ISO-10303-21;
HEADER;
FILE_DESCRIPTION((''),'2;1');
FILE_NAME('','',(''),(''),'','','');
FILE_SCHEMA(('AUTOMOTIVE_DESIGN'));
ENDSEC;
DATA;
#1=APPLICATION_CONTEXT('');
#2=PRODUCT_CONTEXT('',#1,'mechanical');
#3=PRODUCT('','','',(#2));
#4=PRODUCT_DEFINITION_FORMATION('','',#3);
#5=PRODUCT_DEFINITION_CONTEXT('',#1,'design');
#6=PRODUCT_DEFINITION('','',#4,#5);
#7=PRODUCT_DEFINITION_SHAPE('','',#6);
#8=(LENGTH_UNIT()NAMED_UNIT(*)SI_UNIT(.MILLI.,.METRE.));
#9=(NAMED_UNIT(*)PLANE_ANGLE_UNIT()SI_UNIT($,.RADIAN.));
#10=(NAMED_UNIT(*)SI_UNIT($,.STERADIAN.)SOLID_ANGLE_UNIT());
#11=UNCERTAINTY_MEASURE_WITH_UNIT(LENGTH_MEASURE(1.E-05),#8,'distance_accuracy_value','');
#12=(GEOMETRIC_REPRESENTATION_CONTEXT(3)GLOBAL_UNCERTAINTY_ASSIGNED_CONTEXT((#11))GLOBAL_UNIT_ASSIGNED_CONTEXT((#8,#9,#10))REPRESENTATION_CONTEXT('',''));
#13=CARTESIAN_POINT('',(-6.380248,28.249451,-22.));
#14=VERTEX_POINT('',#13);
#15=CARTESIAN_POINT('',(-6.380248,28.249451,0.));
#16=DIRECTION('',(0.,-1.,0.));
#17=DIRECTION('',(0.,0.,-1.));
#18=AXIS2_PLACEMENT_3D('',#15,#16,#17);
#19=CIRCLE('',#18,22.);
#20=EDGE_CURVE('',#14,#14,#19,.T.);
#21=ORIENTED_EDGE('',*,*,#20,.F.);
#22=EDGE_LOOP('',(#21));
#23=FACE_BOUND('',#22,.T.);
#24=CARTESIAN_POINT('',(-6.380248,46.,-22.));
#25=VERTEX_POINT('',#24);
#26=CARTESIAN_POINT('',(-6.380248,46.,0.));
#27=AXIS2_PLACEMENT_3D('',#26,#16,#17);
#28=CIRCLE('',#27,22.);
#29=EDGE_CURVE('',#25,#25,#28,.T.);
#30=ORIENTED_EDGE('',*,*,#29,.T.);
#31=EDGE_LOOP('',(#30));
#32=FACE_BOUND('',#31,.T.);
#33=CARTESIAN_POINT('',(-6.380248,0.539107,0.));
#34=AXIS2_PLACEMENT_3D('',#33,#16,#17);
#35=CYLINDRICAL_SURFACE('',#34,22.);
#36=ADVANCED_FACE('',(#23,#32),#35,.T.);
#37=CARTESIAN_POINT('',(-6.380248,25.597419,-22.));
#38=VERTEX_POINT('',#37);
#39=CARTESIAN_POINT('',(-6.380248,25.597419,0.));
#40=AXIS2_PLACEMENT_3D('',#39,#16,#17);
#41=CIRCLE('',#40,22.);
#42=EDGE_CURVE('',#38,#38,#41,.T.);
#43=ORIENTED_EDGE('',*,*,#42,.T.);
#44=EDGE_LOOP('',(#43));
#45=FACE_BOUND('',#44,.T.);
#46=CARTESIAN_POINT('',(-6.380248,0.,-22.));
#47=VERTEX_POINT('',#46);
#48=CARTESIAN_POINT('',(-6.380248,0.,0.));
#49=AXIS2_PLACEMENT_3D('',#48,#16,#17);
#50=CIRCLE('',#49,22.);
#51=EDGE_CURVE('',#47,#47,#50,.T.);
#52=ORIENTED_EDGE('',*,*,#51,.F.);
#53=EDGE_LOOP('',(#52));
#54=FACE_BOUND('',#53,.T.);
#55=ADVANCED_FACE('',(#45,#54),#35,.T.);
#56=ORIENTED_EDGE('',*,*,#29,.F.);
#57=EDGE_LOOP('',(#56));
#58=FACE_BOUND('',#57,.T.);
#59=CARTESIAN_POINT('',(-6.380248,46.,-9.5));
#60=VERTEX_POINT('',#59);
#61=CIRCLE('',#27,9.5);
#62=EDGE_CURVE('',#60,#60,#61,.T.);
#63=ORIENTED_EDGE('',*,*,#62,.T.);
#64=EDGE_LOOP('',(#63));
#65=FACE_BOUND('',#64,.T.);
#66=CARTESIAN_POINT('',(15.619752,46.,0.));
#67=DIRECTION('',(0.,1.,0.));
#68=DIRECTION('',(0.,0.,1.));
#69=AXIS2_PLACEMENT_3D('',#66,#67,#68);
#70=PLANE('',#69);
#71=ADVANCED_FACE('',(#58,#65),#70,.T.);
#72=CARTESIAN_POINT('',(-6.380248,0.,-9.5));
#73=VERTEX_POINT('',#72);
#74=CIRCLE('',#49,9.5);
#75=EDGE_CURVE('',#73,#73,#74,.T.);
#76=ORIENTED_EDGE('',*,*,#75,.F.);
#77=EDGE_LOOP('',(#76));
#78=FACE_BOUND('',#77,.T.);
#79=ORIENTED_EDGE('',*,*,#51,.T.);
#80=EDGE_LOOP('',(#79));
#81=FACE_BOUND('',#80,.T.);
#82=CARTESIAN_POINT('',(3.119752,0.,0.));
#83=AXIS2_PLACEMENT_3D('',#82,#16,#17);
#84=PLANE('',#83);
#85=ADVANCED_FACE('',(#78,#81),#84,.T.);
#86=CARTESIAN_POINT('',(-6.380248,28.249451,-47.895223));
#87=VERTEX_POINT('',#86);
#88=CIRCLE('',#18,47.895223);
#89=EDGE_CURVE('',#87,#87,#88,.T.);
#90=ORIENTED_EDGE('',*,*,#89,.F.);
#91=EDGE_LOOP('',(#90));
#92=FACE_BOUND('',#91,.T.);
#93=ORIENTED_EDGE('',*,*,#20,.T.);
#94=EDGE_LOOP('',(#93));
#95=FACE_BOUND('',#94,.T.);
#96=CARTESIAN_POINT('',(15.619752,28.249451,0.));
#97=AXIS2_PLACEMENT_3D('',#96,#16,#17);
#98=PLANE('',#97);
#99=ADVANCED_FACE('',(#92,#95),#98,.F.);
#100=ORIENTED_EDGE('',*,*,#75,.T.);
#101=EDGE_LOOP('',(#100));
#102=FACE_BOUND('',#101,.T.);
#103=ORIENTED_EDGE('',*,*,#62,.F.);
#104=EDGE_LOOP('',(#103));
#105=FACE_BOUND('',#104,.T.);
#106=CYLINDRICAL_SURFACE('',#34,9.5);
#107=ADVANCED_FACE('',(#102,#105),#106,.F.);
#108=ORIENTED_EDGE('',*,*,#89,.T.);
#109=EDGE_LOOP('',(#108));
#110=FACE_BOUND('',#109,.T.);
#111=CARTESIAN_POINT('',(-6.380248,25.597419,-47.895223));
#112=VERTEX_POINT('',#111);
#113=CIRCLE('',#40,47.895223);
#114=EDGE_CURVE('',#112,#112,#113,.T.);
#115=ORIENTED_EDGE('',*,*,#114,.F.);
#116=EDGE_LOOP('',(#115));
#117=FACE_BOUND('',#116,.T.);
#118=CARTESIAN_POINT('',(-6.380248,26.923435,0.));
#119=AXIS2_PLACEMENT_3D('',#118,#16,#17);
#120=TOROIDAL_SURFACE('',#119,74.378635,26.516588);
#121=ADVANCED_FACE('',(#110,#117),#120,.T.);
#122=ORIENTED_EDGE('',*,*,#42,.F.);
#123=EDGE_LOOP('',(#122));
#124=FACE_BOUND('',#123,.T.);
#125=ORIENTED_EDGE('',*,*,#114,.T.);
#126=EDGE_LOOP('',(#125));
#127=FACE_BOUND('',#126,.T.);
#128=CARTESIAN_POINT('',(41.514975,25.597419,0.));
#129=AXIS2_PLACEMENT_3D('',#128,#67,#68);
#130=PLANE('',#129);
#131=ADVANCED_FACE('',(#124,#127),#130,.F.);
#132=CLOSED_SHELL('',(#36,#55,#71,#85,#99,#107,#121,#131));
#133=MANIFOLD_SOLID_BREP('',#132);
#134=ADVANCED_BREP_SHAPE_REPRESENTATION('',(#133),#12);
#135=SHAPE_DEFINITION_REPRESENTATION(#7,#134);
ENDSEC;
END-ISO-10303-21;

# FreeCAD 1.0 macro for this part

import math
import FreeCAD as App
import Part
import Sketcher
Q = App.Units.Quantity

doc = App.newDocument("Part")
body = doc.addObject("PartDesign::Body", "Body")

# Sketch on XY plane
sketch1 = body.newObject("Sketcher::SketchObject", "Sketch")
sketch1.AttachmentSupport = (doc.getObject("XY_Plane"), [""])
sketch1.MapMode = "FlatFace"
sketch1.addGeometry([
    Part.LineSegment(App.Vector(15.619752, 28.249451, 0), App.Vector(15.619752, 46, 0)),  # 0
    Part.LineSegment(App.Vector(15.619752, 46, 0), App.Vector(3.119752, 46, 0)),  # 1
    Part.LineSegment(App.Vector(3.119752, 46, 0), App.Vector(3.119752, 0, 0)),  # 2
    Part.LineSegment(App.Vector(3.119752, 0, 0), App.Vector(15.619752, 0, 0)),  # 3
    Part.LineSegment(App.Vector(15.619752, 0, 0), App.Vector(15.619752, 25.597419, 0)),  # 4
    Part.LineSegment(App.Vector(15.619752, 25.597419, 0), App.Vector(41.514975, 25.597419, 0)),  # 5
    Part.ArcOfCircle(Part.Circle(App.Vector(67.998387, 26.923435, 0), App.Vector(0, 0, 1), 26.516588), math.radians(-177.133612), math.radians(177.133612)),  # 6
    Part.LineSegment(App.Vector(41.514975, 28.249451, 0), App.Vector(15.619752, 28.249451, 0)),  # 7
], False)
sketch1.addGeometry(Part.LineSegment(App.Vector(-6.380248, 0, 0), App.Vector(-6.380248, 46, 0)), True)  # axis
sketch1.addConstraint([
    Sketcher.Constraint("Coincident", 0, 2, 1, 1),
    Sketcher.Constraint("Coincident", 1, 2, 2, 1),
    Sketcher.Constraint("Coincident", 2, 2, 3, 1),
    Sketcher.Constraint("Coincident", 3, 2, 4, 1),
    Sketcher.Constraint("Coincident", 4, 2, 5, 1),
    Sketcher.Constraint("Coincident", 5, 2, 6, 1),
    Sketcher.Constraint("Coincident", 6, 2, 7, 1),
    Sketcher.Constraint("Coincident", 7, 2, 0, 1),
    Sketcher.Constraint("Vertical", 0),
    Sketcher.Constraint("Horizontal", 1),
    Sketcher.Constraint("Vertical", 2),
    Sketcher.Constraint("Horizontal", 3),
    Sketcher.Constraint("Vertical", 4),
    Sketcher.Constraint("Horizontal", 5),
    Sketcher.Constraint("Horizontal", 7),
    Sketcher.Constraint("Vertical", 8),
    Sketcher.Constraint("PointOnObject", 2, 2, -1),
    Sketcher.Constraint("PointOnObject", 8, 1, -1),
    Sketcher.Constraint("Horizontal", 1, 2, 8, 2),
    Sketcher.Constraint("Vertical", 0, 2, 3, 2),
    Sketcher.Constraint("Vertical", 5, 2, 6, 2),
    Sketcher.Constraint("DistanceY", 2, 2, 2, 1, Q("46 mm")),
    Sketcher.Constraint("DistanceX", 1, 2, 1, 1, Q("12.5 mm")),
    Sketcher.Constraint("DistanceX", 8, 1, 3, 2, Q("22 mm")),
    Sketcher.Constraint("Radius", 6, Q("26.516588 mm")),
    Sketcher.Constraint("DistanceY", 0, 1, 0, 2, Q("17.750549 mm")),
    Sketcher.Constraint("DistanceY", 4, 1, 4, 2, Q("25.597419 mm")),
    Sketcher.Constraint("DistanceX", 5, 1, 5, 2, Q("25.895223 mm")),
    Sketcher.Constraint("DistanceX", -1, 1, 0, 2, Q("15.619752 mm")),
])
revolution = body.newObject("PartDesign::Revolution", "Revolution")
revolution.Profile = sketch1
revolution.ReferenceAxis = (sketch1, ["Axis0"])
revolution.Angle = 360

doc.recompute()
